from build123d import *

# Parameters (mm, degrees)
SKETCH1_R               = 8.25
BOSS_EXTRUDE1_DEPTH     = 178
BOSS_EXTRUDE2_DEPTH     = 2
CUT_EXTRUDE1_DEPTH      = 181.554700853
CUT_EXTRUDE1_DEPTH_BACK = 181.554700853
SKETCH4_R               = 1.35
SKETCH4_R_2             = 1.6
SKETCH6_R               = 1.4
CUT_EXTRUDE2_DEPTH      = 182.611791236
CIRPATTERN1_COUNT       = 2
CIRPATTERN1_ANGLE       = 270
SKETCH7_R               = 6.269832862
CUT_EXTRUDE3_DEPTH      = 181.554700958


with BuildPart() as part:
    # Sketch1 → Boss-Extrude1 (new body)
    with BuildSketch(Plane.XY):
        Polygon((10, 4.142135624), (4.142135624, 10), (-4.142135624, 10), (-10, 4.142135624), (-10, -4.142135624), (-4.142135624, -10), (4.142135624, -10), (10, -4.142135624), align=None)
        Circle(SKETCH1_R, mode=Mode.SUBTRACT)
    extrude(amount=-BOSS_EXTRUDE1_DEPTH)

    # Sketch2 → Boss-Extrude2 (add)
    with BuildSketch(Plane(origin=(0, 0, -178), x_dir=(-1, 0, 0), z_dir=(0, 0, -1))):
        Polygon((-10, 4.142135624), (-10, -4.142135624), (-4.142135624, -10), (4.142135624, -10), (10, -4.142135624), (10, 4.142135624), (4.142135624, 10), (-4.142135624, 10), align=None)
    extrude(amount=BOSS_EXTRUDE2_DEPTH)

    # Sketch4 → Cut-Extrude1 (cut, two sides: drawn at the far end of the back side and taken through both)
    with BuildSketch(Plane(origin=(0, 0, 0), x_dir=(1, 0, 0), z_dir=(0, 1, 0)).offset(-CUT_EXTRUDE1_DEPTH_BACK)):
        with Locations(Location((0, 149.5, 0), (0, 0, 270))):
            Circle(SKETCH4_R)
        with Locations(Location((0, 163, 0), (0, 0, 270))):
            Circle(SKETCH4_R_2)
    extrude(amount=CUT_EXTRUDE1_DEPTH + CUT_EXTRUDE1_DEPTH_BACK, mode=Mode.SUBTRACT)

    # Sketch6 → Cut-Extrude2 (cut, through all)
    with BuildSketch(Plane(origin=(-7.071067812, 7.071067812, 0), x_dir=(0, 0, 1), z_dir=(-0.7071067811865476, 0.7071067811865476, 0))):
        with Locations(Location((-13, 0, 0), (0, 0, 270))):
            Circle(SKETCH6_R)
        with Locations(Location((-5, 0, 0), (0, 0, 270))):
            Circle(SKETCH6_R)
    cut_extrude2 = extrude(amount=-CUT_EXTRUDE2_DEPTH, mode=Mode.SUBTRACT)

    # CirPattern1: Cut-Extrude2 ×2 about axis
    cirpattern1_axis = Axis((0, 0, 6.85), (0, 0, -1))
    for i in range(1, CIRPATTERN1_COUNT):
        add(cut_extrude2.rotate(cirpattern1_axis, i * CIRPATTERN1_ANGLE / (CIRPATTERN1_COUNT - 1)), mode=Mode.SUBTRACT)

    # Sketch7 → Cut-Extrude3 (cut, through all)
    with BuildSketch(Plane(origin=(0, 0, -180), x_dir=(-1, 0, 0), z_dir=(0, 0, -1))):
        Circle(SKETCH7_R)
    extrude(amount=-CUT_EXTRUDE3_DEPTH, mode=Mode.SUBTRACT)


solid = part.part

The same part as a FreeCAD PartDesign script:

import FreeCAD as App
import Part
import Sketcher


def add_polygon(sketch, points):
    """Adds a closed chain of lines whose ends are joined by coincident constraints."""
    first, n = sketch.GeometryCount, len(points)
    for a, b in zip(points, points[1:] + points[:1]):
        sketch.addGeometry(Part.LineSegment(App.Vector(*a, 0), App.Vector(*b, 0)), False)
    for i in range(n):
        sketch.addConstraint(Sketcher.Constraint("Coincident", first + i, 2, first + (i + 1) % n, 1))

doc = App.newDocument("Part")
body = doc.addObject("PartDesign::Body", "Body")

sketch1 = body.newObject("Sketcher::SketchObject", "Sketch")
sketch1.AttachmentSupport = (doc.getObject("XY_Plane"), [""])
sketch1.MapMode = "FlatFace"
add_polygon(sketch1, [(10, 4.142136), (4.142136, 10), (-4.142136, 10), (-10, 4.142136), (-10, -4.142136), (-4.142136, -10), (4.142136, -10), (10, -4.142136)])
sketch1.addGeometry(Part.Circle(App.Vector(0, 0, 0), App.Vector(0, 0, 1), 8.25), False)
sketch1.addConstraint([
    Sketcher.Constraint("Horizontal", 1),
    Sketcher.Constraint("Vertical", 3),
    Sketcher.Constraint("Horizontal", 5),
    Sketcher.Constraint("Vertical", 7),
    Sketcher.Constraint("Coincident", 8, 3, -1, 1),
    Sketcher.Constraint("Symmetric", 0, 2, 4, 2, -1, 1),
    Sketcher.Constraint("Symmetric", 2, 2, 6, 2, -1, 1),
    Sketcher.Constraint("Perpendicular", 0, 2),
    Sketcher.Constraint("Perpendicular", 2, 4),
    Sketcher.Constraint("Perpendicular", 4, 6),
    Sketcher.Constraint("Horizontal", 3, 2, 6, 2),
    Sketcher.Constraint("Vertical", 1, 2, 4, 2),
    Sketcher.Constraint("Equal", 5, 3),
    Sketcher.Constraint("Diameter", 8, 16.5),
    Sketcher.Constraint("DistanceY", -1, 1, 0, 2, 10.0),
    Sketcher.Constraint("DistanceX", 1, 2, 1, 1, 8.284271),
])
pad1 = body.newObject("PartDesign::Pad", "Pad")
pad1.Profile = sketch1
pad1.Length = 178
pad1.Reversed = True

sketch2 = body.newObject("Sketcher::SketchObject", "Sketch001")
sketch2.AttachmentSupport = (doc.getObject("XY_Plane"), [""])
sketch2.MapMode = "FlatFace"
sketch2.AttachmentOffset = App.Placement(App.Vector(0, 0, -178), App.Rotation())
add_polygon(sketch2, [(10, 4.142136), (10, -4.142136), (4.142136, -10), (-4.142136, -10), (-10, -4.142136), (-10, 4.142136), (-4.142136, 10), (4.142136, 10)])
sketch2.addConstraint([
    Sketcher.Constraint("Vertical", 0),
    Sketcher.Constraint("Horizontal", 2),
    Sketcher.Constraint("Vertical", 4),
    Sketcher.Constraint("Horizontal", 6),
    Sketcher.Constraint("Symmetric", 0, 2, 4, 2, -1, 1),
    Sketcher.Constraint("Symmetric", 1, 2, 5, 2, -1, 1),
    Sketcher.Constraint("Perpendicular", 1, 3),
    Sketcher.Constraint("Perpendicular", 5, 7),
    Sketcher.Constraint("Horizontal", 0, 2, 3, 2),
    Sketcher.Constraint("Horizontal", 4, 2, 7, 2),
    Sketcher.Constraint("Vertical", 2, 2, 5, 2),
    Sketcher.Constraint("Equal", 6, 0),
    Sketcher.Constraint("DistanceX", -1, 1, 0, 2, 10.0),
    Sketcher.Constraint("DistanceX", 2, 2, 2, 1, 8.284271),
])
pad2 = body.newObject("PartDesign::Pad", "Pad001")
pad2.Profile = sketch2
pad2.Length = 2
pad2.Reversed = True

sketch3 = body.newObject("Sketcher::SketchObject", "Sketch002")
sketch3.AttachmentSupport = (doc.getObject("XZ_Plane"), [""])
sketch3.MapMode = "FlatFace"
sketch3.addGeometry([
    Part.Circle(App.Vector(0, -149.5, 0), App.Vector(0, 0, 1), 1.35),
    Part.Circle(App.Vector(0, -163, 0), App.Vector(0, 0, 1), 1.6),
], False)
sketch3.addConstraint([
    Sketcher.Constraint("PointOnObject", 0, 3, -2),
    Sketcher.Constraint("PointOnObject", 1, 3, -2),
    Sketcher.Constraint("Diameter", 0, 2.7),
    Sketcher.Constraint("Diameter", 1, 3.2),
    Sketcher.Constraint("DistanceY", 1, 3, -1, 1, 163.0),
    Sketcher.Constraint("DistanceY", 0, 3, -1, 1, 149.5),
])
pocket1 = body.newObject("PartDesign::Pocket", "Pocket")
pocket1.Profile = sketch3
pocket1.Type = "ThroughAll"
pocket1.Midplane = True

sketch4 = body.newObject("Sketcher::SketchObject", "Sketch003")
sketch4.Placement = App.Placement(App.Vector(-7.071068, 7.071068, 0), App.Rotation(App.Vector(0, 0, 1), App.Vector(0.707106781, 0.707106781, 0), App.Vector(-0.707106781, 0.707106781, 0), "ZXY"))
sketch4.addGeometry([
    Part.Circle(App.Vector(-13, 0, 0), App.Vector(0, 0, 1), 1.4),
    Part.Circle(App.Vector(-5, 0, 0), App.Vector(0, 0, 1), 1.4),
], False)
sketch4.addConstraint([
    Sketcher.Constraint("Equal", 0, 1),
    Sketcher.Constraint("PointOnObject", 0, 3, -1),
    Sketcher.Constraint("PointOnObject", 1, 3, -1),
    Sketcher.Constraint("Diameter", 0, 2.8),
    Sketcher.Constraint("DistanceX", 0, 3, -1, 1, 13.0),
    Sketcher.Constraint("DistanceX", 1, 3, -1, 1, 5.0),
])
pocket2 = body.newObject("PartDesign::Pocket", "Pocket001")
pocket2.Profile = sketch4
pocket2.Type = "ThroughAll"
doc.recompute()

polarpattern = body.newObject("PartDesign::PolarPattern", "PolarPattern")
polarpattern.Originals = [pocket2]
polarpattern.Axis = (doc.getObject("Z_Axis"), [""])
polarpattern.Angle = 270
polarpattern.Occurrences = 2
polarpattern.Reversed = True
body.Tip = polarpattern

sketch5 = body.newObject("Sketcher::SketchObject", "Sketch004")
sketch5.AttachmentSupport = (doc.getObject("XY_Plane"), [""])
sketch5.MapMode = "FlatFace"
sketch5.AttachmentOffset = App.Placement(App.Vector(0, 0, -180), App.Rotation())
sketch5.addGeometry(Part.Circle(App.Vector(0, 0, 0), App.Vector(0, 0, 1), 6.269833), False)
sketch5.addConstraint([
    Sketcher.Constraint("Coincident", 0, 3, -1, 1),
    Sketcher.Constraint("Diameter", 0, 12.539666),
])
pocket3 = body.newObject("PartDesign::Pocket", "Pocket002")
pocket3.Profile = sketch5
pocket3.Type = "ThroughAll"
pocket3.Reversed = True

doc.recompute()
